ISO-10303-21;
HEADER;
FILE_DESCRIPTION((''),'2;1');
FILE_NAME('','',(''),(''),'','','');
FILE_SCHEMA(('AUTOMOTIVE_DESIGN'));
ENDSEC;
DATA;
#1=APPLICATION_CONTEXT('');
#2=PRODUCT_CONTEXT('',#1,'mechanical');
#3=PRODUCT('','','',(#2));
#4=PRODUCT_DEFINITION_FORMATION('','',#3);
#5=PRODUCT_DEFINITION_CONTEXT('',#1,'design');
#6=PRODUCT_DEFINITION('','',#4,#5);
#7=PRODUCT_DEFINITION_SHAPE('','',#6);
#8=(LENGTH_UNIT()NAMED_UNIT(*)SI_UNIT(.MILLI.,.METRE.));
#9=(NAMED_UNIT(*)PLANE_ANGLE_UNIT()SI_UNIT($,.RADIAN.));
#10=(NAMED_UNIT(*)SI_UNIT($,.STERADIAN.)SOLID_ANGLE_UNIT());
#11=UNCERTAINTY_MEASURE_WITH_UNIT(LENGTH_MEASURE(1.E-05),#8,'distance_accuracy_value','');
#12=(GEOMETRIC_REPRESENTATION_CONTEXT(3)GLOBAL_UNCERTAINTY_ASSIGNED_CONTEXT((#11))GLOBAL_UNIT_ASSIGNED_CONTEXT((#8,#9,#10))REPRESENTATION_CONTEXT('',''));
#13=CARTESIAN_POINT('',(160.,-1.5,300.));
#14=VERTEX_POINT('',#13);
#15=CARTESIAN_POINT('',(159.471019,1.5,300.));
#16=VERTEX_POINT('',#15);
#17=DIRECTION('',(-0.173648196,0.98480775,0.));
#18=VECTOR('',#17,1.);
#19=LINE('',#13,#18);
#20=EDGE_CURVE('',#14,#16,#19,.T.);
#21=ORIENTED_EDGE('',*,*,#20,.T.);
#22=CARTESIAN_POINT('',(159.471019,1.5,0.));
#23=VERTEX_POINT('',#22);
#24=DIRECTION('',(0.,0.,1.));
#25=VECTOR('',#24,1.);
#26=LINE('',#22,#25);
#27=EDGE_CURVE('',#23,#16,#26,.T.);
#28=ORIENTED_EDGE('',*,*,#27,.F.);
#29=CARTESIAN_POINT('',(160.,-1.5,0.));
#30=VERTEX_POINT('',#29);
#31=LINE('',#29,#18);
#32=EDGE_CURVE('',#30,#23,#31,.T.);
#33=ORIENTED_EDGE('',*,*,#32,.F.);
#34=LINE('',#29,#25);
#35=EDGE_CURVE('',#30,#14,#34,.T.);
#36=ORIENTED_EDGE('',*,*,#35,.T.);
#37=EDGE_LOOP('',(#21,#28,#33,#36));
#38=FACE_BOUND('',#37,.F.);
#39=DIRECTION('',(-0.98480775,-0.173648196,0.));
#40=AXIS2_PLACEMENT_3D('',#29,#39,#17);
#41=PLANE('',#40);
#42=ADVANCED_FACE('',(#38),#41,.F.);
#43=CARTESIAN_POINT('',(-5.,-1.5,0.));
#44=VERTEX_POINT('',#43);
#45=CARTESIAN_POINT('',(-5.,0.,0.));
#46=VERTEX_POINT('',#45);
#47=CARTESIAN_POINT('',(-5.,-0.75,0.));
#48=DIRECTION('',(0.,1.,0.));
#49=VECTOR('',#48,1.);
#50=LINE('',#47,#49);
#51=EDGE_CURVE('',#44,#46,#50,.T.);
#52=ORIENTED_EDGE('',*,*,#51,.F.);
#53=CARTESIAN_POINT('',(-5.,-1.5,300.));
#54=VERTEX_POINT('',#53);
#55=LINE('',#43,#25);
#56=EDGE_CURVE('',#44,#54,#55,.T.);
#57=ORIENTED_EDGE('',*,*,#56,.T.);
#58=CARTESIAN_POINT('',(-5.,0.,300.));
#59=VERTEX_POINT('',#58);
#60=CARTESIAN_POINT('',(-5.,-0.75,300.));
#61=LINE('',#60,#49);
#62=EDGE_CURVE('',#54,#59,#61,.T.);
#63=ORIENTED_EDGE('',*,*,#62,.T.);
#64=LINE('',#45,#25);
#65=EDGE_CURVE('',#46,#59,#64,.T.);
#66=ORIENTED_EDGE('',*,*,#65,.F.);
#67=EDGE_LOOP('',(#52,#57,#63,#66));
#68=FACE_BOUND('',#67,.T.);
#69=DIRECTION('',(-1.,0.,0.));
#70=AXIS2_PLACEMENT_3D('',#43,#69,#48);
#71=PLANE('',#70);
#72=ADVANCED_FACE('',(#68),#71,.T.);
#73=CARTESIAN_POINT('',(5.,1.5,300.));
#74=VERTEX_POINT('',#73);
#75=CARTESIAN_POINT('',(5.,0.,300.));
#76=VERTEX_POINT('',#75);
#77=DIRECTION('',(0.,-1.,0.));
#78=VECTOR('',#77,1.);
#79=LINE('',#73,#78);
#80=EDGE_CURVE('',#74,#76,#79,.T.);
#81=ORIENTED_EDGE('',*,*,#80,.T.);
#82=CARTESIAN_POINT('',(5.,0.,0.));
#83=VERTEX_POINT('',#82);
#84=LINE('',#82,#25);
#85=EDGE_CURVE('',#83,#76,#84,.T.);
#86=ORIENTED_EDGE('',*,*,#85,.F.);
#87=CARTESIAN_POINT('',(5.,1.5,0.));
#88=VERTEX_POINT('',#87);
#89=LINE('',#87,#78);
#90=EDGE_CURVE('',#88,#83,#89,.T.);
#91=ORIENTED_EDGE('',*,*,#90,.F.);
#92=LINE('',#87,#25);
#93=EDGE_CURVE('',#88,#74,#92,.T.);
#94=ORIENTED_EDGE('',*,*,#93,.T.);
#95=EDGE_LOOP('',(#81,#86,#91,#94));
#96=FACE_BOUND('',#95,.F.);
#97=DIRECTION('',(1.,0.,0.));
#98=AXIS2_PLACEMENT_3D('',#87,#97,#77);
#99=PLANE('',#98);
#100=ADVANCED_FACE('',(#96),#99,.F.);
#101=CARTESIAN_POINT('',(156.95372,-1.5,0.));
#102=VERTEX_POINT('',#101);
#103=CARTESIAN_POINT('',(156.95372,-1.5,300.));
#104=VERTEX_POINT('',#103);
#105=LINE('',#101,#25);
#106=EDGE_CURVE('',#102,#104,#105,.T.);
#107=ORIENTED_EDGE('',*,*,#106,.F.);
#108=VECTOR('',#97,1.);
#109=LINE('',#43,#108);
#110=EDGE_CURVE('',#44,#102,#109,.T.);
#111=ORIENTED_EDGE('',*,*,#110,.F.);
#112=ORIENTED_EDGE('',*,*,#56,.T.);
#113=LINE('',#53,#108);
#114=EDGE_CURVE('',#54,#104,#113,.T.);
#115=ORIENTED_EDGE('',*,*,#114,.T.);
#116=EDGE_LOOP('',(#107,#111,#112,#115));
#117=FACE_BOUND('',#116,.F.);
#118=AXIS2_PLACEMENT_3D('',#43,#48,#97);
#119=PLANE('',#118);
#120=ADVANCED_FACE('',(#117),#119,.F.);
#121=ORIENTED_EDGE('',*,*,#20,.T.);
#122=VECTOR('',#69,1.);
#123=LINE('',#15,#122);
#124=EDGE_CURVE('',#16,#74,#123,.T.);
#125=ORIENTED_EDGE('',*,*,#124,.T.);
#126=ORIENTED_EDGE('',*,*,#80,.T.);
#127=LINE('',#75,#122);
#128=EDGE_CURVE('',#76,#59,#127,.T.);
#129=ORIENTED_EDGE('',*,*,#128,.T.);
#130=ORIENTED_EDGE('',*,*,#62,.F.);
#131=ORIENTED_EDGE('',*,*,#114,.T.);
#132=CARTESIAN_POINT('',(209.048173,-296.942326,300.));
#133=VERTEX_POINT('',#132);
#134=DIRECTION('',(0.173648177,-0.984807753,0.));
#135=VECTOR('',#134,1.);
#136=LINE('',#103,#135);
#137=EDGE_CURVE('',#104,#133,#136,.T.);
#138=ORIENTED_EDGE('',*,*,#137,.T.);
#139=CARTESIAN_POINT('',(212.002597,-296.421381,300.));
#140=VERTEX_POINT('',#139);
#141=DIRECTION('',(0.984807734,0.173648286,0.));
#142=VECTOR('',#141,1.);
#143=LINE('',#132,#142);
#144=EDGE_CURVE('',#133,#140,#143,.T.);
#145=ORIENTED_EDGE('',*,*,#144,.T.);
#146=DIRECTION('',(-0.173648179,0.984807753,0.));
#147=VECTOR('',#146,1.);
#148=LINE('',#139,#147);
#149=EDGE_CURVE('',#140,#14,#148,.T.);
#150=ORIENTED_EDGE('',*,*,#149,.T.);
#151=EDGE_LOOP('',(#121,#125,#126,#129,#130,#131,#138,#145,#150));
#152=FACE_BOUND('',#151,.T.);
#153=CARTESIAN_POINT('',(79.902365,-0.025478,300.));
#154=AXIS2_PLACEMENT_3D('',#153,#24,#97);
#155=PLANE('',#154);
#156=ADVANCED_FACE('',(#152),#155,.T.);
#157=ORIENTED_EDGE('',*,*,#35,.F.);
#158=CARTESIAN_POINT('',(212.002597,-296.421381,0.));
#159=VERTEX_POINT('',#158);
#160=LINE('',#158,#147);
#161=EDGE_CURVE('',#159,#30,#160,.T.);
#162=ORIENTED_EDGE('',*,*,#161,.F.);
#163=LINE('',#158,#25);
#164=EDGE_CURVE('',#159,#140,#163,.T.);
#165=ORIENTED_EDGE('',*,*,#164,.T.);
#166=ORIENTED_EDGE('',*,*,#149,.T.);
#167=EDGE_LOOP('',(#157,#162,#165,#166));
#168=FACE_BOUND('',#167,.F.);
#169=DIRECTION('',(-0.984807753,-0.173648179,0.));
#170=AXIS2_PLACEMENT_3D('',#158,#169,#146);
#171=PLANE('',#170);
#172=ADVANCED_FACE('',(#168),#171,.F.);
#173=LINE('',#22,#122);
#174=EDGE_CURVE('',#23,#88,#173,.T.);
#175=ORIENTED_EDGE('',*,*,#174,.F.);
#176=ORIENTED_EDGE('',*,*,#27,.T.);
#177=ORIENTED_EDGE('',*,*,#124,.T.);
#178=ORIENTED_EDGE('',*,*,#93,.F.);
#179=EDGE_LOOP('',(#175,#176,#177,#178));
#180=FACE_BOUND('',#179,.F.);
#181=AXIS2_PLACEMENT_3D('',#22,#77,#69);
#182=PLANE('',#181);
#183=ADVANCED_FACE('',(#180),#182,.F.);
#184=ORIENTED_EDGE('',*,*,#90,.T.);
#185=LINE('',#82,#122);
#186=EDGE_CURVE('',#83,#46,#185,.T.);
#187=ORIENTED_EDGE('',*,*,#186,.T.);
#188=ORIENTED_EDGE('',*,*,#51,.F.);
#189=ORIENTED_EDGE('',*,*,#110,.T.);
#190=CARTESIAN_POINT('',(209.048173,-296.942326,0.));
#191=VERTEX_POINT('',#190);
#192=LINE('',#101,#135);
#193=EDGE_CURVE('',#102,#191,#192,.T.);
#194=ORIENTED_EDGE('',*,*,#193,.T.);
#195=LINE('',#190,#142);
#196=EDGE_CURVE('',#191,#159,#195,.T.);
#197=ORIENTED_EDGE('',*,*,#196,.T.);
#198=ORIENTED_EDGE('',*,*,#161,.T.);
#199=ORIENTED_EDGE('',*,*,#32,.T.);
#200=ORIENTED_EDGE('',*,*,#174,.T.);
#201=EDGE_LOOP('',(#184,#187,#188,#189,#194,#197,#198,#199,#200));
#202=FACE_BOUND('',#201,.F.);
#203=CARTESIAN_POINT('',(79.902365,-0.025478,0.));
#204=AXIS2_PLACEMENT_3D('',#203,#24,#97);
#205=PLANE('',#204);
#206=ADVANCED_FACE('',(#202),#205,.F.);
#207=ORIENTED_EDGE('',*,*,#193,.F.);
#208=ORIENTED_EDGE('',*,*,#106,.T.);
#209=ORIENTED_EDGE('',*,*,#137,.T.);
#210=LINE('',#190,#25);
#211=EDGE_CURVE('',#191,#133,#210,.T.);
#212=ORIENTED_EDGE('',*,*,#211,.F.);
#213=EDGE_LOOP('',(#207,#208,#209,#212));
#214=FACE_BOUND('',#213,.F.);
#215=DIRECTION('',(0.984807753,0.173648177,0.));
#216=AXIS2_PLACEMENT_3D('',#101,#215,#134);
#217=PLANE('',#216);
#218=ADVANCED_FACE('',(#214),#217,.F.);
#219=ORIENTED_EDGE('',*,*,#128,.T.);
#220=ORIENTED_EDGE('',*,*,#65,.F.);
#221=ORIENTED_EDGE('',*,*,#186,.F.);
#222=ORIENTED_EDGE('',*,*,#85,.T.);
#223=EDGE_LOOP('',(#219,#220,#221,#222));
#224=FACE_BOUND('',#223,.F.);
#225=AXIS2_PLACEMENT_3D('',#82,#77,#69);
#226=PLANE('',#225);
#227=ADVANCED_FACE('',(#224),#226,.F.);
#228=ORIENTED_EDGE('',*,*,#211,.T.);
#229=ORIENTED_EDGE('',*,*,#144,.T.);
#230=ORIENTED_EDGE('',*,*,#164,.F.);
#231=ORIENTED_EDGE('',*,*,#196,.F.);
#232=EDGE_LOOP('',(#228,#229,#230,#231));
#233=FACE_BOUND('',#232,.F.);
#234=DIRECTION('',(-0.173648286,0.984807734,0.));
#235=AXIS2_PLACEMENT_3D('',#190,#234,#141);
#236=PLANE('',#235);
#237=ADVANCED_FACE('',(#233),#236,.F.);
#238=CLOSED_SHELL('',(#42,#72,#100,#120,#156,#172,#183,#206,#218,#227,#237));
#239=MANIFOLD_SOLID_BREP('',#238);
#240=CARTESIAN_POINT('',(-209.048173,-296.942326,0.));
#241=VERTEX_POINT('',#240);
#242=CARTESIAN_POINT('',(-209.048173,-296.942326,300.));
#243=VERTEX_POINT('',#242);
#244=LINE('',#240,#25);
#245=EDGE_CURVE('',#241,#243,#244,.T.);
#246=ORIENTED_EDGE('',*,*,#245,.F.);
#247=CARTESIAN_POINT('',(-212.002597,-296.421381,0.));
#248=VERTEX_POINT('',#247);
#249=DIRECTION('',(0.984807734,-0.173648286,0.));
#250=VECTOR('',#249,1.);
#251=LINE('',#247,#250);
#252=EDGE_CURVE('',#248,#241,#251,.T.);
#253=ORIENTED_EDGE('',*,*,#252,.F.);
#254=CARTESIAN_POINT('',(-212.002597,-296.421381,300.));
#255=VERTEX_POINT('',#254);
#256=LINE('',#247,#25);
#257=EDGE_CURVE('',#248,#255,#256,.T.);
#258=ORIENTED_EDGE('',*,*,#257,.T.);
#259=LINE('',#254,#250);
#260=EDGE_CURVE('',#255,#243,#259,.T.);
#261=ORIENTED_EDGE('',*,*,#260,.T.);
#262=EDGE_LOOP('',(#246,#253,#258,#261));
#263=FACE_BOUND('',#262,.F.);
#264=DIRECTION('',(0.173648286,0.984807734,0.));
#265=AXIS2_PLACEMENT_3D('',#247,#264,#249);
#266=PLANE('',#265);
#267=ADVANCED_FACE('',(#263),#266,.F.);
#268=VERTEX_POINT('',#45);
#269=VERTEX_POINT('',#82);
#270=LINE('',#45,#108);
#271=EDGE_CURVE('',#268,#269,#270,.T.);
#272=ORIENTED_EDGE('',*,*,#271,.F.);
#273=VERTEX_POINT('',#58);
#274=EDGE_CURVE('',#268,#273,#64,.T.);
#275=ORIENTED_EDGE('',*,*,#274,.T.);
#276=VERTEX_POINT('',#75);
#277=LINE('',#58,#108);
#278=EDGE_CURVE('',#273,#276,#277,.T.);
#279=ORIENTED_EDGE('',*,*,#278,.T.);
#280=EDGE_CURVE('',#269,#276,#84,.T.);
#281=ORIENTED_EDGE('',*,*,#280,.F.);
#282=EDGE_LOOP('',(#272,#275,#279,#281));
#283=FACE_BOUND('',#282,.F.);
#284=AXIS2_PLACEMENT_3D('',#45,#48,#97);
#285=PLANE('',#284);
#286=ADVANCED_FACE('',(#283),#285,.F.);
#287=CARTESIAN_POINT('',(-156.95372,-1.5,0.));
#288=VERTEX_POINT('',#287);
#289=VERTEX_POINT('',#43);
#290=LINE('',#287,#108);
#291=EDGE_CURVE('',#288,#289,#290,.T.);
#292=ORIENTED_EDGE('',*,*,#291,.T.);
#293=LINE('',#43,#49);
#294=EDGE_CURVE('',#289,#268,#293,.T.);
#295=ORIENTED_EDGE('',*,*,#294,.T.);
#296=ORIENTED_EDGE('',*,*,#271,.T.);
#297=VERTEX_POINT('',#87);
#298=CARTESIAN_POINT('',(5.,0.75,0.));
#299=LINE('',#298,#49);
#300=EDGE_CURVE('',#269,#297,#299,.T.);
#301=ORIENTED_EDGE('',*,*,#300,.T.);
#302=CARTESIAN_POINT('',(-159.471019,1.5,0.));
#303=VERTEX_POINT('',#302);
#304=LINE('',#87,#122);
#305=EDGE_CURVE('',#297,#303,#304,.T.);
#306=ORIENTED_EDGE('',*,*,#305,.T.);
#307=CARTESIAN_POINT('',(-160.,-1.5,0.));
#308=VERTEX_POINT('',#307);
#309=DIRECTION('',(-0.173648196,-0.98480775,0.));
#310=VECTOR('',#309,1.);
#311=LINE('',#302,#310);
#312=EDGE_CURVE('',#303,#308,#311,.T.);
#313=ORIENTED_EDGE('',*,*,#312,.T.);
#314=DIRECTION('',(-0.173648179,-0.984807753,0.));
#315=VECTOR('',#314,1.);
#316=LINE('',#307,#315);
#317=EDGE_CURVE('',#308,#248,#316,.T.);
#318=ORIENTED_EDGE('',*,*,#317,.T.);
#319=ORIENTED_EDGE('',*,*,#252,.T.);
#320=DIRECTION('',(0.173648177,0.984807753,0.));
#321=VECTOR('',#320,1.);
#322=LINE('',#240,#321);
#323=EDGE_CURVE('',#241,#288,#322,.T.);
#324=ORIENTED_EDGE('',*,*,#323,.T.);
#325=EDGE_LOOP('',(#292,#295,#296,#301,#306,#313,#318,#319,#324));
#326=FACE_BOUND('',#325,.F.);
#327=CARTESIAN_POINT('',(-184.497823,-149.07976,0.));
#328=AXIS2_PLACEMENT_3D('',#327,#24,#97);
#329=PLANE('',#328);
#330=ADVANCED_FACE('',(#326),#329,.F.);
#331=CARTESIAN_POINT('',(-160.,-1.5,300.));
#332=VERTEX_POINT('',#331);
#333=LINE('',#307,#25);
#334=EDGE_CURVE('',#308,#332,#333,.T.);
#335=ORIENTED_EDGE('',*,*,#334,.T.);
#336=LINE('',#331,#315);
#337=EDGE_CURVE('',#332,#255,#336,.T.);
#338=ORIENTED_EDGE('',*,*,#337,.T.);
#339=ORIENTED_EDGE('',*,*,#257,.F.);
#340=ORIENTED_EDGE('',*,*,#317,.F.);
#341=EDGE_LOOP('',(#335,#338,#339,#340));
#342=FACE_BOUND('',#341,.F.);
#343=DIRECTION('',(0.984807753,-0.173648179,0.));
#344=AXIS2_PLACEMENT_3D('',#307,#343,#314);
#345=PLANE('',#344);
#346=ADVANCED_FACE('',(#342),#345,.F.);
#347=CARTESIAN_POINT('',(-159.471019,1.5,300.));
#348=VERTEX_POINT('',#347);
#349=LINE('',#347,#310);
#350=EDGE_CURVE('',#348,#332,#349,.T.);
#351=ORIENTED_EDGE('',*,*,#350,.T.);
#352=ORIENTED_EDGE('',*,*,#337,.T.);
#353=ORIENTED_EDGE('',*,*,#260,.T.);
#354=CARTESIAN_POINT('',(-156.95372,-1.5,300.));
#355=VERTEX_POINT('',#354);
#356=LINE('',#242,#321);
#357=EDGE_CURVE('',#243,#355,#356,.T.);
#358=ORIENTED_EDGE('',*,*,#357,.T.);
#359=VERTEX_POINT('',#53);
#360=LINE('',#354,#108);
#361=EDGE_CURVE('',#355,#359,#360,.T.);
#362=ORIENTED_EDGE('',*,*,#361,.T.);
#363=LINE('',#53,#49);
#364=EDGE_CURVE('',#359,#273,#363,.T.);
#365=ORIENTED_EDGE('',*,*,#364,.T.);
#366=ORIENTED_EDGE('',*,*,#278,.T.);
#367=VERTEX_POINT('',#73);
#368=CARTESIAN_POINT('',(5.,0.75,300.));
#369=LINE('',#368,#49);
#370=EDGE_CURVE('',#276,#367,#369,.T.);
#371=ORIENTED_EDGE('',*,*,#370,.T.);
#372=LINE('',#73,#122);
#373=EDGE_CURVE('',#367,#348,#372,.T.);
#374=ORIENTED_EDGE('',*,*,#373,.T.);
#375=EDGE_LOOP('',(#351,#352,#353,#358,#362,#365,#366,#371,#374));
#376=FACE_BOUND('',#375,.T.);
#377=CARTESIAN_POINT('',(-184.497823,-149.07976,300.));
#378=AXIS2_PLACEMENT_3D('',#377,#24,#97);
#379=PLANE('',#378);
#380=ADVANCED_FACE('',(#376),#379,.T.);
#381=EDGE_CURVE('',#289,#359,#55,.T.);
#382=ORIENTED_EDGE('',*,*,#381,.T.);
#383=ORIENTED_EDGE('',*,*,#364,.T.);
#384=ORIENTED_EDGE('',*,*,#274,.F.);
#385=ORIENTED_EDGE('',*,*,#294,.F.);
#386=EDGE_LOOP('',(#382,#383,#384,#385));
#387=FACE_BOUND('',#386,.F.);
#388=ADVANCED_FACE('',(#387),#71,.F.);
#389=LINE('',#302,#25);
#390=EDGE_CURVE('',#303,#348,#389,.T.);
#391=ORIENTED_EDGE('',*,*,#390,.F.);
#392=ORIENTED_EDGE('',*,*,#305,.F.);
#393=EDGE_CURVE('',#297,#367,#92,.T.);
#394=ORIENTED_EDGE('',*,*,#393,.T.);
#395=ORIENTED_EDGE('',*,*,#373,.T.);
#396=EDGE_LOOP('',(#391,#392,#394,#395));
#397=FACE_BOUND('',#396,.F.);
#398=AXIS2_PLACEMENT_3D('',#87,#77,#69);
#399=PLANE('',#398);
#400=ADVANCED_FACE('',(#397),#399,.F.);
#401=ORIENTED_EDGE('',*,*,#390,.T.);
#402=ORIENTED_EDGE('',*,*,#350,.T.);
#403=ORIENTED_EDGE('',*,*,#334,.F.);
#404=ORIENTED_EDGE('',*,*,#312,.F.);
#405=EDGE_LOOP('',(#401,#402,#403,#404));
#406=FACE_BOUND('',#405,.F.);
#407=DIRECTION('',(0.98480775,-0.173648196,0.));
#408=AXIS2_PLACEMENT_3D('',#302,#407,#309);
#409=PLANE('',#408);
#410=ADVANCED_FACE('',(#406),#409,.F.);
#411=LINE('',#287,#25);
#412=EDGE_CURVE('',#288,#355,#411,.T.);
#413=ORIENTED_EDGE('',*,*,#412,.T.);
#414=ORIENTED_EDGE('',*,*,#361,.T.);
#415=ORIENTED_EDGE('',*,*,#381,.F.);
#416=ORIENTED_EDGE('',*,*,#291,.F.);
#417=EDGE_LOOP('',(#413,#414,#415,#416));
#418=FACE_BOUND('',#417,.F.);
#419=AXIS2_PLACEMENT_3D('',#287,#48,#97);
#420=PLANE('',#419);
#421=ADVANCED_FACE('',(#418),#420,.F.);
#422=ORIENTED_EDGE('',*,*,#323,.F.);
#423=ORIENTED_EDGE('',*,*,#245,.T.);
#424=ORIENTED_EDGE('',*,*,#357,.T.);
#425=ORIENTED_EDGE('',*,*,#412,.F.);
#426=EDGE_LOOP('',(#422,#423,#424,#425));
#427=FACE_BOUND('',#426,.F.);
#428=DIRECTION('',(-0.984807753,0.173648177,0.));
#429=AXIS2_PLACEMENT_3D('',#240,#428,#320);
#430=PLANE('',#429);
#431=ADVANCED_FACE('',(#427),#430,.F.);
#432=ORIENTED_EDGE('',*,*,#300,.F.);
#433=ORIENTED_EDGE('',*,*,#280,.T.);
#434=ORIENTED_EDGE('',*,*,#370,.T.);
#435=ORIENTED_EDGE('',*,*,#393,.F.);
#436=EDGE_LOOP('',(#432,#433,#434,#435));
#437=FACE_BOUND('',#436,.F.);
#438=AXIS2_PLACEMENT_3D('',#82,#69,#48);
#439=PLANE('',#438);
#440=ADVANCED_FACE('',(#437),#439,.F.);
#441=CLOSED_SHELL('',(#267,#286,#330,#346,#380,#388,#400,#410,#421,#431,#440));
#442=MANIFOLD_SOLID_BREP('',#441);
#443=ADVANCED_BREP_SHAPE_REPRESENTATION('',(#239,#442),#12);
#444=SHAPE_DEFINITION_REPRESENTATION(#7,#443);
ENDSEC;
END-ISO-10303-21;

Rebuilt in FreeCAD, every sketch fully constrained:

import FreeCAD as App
import Part
import Sketcher
Q = App.Units.Quantity

doc = App.newDocument("Part")
body = doc.addObject("PartDesign::Body", "Body")

# Sketch on XY plane
sketch1 = body.newObject("Sketcher::SketchObject", "Sketch")
sketch1.AttachmentSupport = (doc.getObject("XY_Plane"), [""])
sketch1.MapMode = "FlatFace"
sketch1.addGeometry([
    Part.LineSegment(App.Vector(-160, -1.5, 0), App.Vector(-212, -296.4, 0)),  # 0
    Part.LineSegment(App.Vector(-212, -296.4, 0), App.Vector(-209, -296.9, 0)),  # 1
    Part.LineSegment(App.Vector(-209, -296.9, 0), App.Vector(-157, -1.5, 0)),  # 2
    Part.LineSegment(App.Vector(-157, -1.5, 0), App.Vector(-5, -1.5, 0)),  # 3
    Part.LineSegment(App.Vector(-5, -1.5, 0), App.Vector(-5, 0, 0)),  # 4
    Part.LineSegment(App.Vector(-5, 0, 0), App.Vector(5, 0, 0)),  # 5
    Part.LineSegment(App.Vector(5, 0, 0), App.Vector(5, 1.5, 0)),  # 6
    Part.LineSegment(App.Vector(5, 1.5, 0), App.Vector(-159.5, 1.5, 0)),  # 7
    Part.LineSegment(App.Vector(-159.5, 1.5, 0), App.Vector(-160, -1.5, 0)),  # 8
], False)
sketch1.addConstraint([
    Sketcher.Constraint("Coincident", 0, 2, 1, 1),
    Sketcher.Constraint("Coincident", 1, 2, 2, 1),
    Sketcher.Constraint("Coincident", 2, 2, 3, 1),
    Sketcher.Constraint("Coincident", 3, 2, 4, 1),
    Sketcher.Constraint("Coincident", 4, 2, 5, 1),
    Sketcher.Constraint("Coincident", 5, 2, 6, 1),
    Sketcher.Constraint("Coincident", 6, 2, 7, 1),
    Sketcher.Constraint("Coincident", 7, 2, 8, 1),
    Sketcher.Constraint("Coincident", 8, 2, 0, 1),
    Sketcher.Constraint("Horizontal", 3),
    Sketcher.Constraint("Vertical", 4),
    Sketcher.Constraint("Horizontal", 5),
    Sketcher.Constraint("Vertical", 6),
    Sketcher.Constraint("Horizontal", 7),
    Sketcher.Constraint("Symmetric", 4, 2, 5, 2, -1, 1),
    Sketcher.Constraint("Perpendicular", 0, 1),
    Sketcher.Constraint("Perpendicular", 1, 2),
    Sketcher.Constraint("Parallel", 2, 8),
    Sketcher.Constraint("Horizontal", 3, 2, 8, 2),
    Sketcher.Constraint("Equal", 4, 6),
    Sketcher.Constraint("DistanceX", 5, 1, 5, 2, Q("10 mm")),
    Sketcher.Constraint("Angle", 0, Q("-100 deg")),
    Sketcher.Constraint("Distance", 1, Q("3.000001 mm")),
    Sketcher.Constraint("Distance", 2, Q("300 mm")),
    Sketcher.Constraint("DistanceY", 4, 1, 4, 2, Q("1.5 mm")),
    Sketcher.Constraint("DistanceX", 8, 2, -1, 1, Q("160 mm")),
])
pad1 = body.newObject("PartDesign::Pad", "Pad")
pad1.Profile = sketch1
pad1.Length = 300
body2 = doc.addObject("PartDesign::Body", "Body001")

# Sketch on XY plane
sketch2 = body2.newObject("Sketcher::SketchObject", "Sketch001")
sketch2.AttachmentSupport = (doc.getObject("XY_Plane001"), [""])
sketch2.MapMode = "FlatFace"
sketch2.addGeometry([
    Part.LineSegment(App.Vector(159.5, 1.5, 0), App.Vector(5, 1.5, 0)),  # 0
    Part.LineSegment(App.Vector(5, 1.5, 0), App.Vector(5, 0, 0)),  # 1
    Part.LineSegment(App.Vector(5, 0, 0), App.Vector(-5, 0, 0)),  # 2
    Part.LineSegment(App.Vector(-5, 0, 0), App.Vector(-5, -1.5, 0)),  # 3
    Part.LineSegment(App.Vector(-5, -1.5, 0), App.Vector(157, -1.5, 0)),  # 4
    Part.LineSegment(App.Vector(157, -1.5, 0), App.Vector(209, -296.9, 0)),  # 5
    Part.LineSegment(App.Vector(209, -296.9, 0), App.Vector(212, -296.4, 0)),  # 6
    Part.LineSegment(App.Vector(212, -296.4, 0), App.Vector(160, -1.5, 0)),  # 7
    Part.LineSegment(App.Vector(160, -1.5, 0), App.Vector(159.5, 1.5, 0)),  # 8
], False)
sketch2.addConstraint([
    Sketcher.Constraint("Coincident", 0, 2, 1, 1),
    Sketcher.Constraint("Coincident", 1, 2, 2, 1),
    Sketcher.Constraint("Coincident", 2, 2, 3, 1),
    Sketcher.Constraint("Coincident", 3, 2, 4, 1),
    Sketcher.Constraint("Coincident", 4, 2, 5, 1),
    Sketcher.Constraint("Coincident", 5, 2, 6, 1),
    Sketcher.Constraint("Coincident", 6, 2, 7, 1),
    Sketcher.Constraint("Coincident", 7, 2, 8, 1),
    Sketcher.Constraint("Coincident", 8, 2, 0, 1),
    Sketcher.Constraint("Horizontal", 0),
    Sketcher.Constraint("Vertical", 1),
    Sketcher.Constraint("Horizontal", 2),
    Sketcher.Constraint("Vertical", 3),
    Sketcher.Constraint("Horizontal", 4),
    Sketcher.Constraint("Symmetric", 1, 2, 2, 2, -1, 1),
    Sketcher.Constraint("Perpendicular", 5, 6),
    Sketcher.Constraint("Perpendicular", 6, 7),
    Sketcher.Constraint("Parallel", 7, 8),
    Sketcher.Constraint("Horizontal", 4, 2, 7, 2),
    Sketcher.Constraint("Equal", 1, 3),
    Sketcher.Constraint("DistanceX", 2, 2, 2, 1, Q("10 mm")),
    Sketcher.Constraint("Angle", 5, Q("-80 deg")),
    Sketcher.Constraint("Distance", 5, Q("300 mm")),
    Sketcher.Constraint("Distance", 6, Q("3.000001 mm")),
    Sketcher.Constraint("DistanceY", 1, 2, 1, 1, Q("1.5 mm")),
    Sketcher.Constraint("DistanceX", -1, 1, 7, 2, Q("160 mm")),
])
pad2 = body2.newObject("PartDesign::Pad", "Pad001")
pad2.Profile = sketch2
pad2.Length = 300

doc.recompute()
